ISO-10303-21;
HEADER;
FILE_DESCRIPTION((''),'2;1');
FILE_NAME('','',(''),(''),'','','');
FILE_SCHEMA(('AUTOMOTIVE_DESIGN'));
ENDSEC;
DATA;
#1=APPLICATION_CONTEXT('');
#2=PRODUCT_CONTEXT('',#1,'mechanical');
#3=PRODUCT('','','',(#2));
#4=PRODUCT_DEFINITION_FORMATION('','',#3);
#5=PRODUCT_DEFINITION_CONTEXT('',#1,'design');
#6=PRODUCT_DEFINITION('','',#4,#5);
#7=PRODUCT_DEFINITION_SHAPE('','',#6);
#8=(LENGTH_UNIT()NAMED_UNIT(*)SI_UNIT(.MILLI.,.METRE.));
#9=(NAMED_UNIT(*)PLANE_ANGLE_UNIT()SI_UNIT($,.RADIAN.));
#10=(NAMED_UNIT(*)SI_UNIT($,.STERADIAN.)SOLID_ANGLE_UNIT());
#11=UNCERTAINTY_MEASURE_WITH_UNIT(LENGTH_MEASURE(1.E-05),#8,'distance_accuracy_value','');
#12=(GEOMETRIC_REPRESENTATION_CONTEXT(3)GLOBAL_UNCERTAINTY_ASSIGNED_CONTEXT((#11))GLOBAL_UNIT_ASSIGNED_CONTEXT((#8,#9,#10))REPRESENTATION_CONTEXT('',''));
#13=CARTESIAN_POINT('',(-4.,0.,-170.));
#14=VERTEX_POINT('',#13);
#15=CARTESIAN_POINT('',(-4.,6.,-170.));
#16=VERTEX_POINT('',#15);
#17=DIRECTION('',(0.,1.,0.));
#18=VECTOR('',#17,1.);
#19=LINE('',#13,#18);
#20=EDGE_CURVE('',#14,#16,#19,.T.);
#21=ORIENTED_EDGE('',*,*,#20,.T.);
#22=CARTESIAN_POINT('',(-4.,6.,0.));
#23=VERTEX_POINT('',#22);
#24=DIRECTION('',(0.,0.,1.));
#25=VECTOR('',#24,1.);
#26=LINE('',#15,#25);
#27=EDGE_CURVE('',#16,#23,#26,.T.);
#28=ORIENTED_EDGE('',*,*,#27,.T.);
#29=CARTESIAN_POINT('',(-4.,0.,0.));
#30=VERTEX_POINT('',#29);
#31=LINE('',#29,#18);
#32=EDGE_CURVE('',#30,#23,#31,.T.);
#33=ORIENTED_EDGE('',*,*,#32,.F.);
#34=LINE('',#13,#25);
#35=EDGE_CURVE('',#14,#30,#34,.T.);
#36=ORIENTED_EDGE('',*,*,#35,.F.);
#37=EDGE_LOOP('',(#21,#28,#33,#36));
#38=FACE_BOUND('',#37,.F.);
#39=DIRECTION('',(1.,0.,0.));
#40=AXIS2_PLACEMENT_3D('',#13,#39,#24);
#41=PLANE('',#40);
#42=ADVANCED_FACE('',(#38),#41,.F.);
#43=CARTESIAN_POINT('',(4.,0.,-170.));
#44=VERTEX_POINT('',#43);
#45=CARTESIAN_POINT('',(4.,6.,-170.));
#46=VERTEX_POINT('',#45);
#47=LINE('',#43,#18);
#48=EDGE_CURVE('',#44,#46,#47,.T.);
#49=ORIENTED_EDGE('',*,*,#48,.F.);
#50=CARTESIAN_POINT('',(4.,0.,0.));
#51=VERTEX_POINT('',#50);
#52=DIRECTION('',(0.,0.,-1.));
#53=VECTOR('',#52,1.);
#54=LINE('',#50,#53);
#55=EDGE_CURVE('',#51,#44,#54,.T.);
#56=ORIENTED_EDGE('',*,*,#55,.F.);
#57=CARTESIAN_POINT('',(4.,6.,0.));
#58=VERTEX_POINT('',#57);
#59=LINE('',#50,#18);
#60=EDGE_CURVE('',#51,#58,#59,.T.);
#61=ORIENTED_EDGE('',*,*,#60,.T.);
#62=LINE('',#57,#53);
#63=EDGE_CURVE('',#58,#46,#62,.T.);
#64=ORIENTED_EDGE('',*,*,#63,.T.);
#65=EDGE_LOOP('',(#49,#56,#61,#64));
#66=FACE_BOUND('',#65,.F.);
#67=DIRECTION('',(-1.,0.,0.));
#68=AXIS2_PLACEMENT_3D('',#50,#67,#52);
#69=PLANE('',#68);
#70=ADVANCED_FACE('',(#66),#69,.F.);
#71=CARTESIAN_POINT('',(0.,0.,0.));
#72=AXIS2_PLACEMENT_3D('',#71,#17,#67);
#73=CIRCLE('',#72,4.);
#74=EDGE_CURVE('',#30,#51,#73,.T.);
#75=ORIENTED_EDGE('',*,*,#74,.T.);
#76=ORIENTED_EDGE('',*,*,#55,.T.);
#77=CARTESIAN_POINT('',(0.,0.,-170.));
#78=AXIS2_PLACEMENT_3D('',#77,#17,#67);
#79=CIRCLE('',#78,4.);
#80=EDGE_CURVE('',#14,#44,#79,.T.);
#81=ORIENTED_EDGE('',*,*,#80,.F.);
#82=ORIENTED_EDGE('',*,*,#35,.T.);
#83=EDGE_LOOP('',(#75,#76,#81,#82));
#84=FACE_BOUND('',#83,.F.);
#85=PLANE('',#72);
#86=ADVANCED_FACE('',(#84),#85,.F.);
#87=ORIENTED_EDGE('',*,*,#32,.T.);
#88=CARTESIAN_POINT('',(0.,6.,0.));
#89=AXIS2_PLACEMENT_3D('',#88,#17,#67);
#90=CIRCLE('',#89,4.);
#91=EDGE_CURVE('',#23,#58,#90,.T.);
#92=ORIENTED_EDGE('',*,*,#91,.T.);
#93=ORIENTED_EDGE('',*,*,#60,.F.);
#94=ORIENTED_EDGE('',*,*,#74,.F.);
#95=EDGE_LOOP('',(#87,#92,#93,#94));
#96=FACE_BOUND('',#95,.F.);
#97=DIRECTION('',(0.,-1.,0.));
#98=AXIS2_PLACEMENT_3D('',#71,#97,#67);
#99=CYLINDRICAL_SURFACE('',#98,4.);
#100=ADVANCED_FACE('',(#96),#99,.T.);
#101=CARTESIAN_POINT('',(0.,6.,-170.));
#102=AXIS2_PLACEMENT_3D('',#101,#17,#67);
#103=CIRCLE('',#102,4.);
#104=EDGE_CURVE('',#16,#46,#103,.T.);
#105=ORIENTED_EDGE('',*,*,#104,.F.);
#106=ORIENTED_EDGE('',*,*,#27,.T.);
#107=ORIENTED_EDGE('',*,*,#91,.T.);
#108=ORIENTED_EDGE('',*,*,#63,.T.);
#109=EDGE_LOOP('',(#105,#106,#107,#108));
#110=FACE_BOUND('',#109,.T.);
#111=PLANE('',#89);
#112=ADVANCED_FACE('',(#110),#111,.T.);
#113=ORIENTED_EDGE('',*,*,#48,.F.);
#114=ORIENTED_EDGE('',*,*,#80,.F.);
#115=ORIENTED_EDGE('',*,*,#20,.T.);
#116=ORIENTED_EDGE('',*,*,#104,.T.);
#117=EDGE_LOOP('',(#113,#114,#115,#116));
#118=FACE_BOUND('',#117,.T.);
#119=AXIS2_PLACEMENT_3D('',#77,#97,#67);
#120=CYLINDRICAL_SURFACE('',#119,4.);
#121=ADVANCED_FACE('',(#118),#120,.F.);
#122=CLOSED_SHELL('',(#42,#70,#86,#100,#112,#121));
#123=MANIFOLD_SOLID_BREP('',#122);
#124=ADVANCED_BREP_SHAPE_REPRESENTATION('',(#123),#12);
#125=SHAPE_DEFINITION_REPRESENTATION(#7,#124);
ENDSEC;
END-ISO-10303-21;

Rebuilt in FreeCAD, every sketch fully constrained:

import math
import FreeCAD as App
import Part
import Sketcher
from FreeCAD import Vector

doc = App.newDocument("Part")
body = doc.addObject("PartDesign::Body", "Body")

# Sketch on XZ plane
sketch1 = doc.addObject("Sketcher::SketchObject", "Sketch")
body.addObject(sketch1)
sketch1.AttachmentSupport = (doc.XZ_Plane, [""])
sketch1.MapMode = "FlatFace"
sketch1.addGeometry(Part.ArcOfCircle(Part.Circle(Vector(0, 0, 0), Vector(0, 0, 1), 4), math.radians(0), math.radians(180)), False)
sketch1.addGeometry(Part.LineSegment(Vector(4, 0, 0), Vector(4, -170, 0)), False)
sketch1.addGeometry(Part.ArcOfCircle(Part.Circle(Vector(0, -170, 0), Vector(0, 0, 1), 4), math.radians(0), math.radians(180)), False)
sketch1.addGeometry(Part.LineSegment(Vector(-4, -170, 0), Vector(-4, 0, 0)), False)
sketch1.addConstraint(Sketcher.Constraint("Tangent", 0, 1, 1, 1))
sketch1.addConstraint(Sketcher.Constraint("Tangent", 1, 2, 2, 1))
sketch1.addConstraint(Sketcher.Constraint("Tangent", 2, 2, 3, 1))
sketch1.addConstraint(Sketcher.Constraint("Tangent", 3, 2, 0, 2))
sketch1.addConstraint(Sketcher.Constraint("Vertical", 1))
sketch1.addConstraint(Sketcher.Constraint("Vertical", 3))
sketch1.addConstraint(Sketcher.Constraint("Coincident", 0, 3, -1, 1))
sketch1.addConstraint(Sketcher.Constraint("Radius", 0, 4.0))
sketch1.addConstraint(Sketcher.Constraint("DistanceY", 1, 2, 1, 1, 170.0))
pad1 = doc.addObject("PartDesign::Pad", "Pad")
body.addObject(pad1)
pad1.Profile = sketch1
pad1.Length = 6
pad1.Reversed = True

doc.recompute()
